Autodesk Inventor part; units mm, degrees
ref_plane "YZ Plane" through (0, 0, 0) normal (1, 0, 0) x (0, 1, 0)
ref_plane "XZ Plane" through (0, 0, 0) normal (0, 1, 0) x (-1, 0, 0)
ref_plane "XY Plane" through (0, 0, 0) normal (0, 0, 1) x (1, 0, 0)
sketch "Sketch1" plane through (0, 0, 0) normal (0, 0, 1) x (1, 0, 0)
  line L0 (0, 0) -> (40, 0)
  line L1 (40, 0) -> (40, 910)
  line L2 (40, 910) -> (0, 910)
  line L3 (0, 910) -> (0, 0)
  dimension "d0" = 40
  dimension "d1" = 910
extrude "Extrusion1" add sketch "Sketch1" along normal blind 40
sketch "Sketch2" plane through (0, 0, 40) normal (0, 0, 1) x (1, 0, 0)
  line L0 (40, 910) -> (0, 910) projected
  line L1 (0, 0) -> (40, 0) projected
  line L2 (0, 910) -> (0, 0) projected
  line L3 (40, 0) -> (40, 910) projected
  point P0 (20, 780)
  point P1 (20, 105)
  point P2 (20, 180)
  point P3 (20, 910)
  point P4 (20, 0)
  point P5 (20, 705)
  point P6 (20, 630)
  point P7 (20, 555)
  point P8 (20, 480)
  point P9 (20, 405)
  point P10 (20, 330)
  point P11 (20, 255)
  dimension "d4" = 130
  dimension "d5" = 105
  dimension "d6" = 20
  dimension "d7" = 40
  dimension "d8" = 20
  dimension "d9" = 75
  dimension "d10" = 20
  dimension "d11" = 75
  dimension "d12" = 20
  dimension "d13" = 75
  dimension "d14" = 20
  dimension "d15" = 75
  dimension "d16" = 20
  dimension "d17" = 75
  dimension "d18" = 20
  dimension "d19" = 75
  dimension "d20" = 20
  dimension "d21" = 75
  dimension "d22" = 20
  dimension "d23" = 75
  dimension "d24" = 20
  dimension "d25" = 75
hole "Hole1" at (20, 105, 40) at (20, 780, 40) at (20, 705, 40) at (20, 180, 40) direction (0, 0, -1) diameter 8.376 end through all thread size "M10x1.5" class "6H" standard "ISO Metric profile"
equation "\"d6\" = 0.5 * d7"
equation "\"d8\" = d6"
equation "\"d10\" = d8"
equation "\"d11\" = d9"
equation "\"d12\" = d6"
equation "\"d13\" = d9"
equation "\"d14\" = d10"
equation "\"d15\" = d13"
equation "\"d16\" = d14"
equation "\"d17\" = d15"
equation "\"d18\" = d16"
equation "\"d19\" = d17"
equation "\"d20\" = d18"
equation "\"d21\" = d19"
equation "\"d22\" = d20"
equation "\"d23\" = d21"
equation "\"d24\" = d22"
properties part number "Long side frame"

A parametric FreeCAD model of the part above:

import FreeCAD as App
import Part
import Sketcher


def add_polygon(sketch, points):
    """Adds a closed chain of lines whose ends are joined by coincident constraints."""
    first, n = sketch.GeometryCount, len(points)
    for a, b in zip(points, points[1:] + points[:1]):
        sketch.addGeometry(Part.LineSegment(App.Vector(*a, 0), App.Vector(*b, 0)), False)
    for i in range(n):
        sketch.addConstraint(Sketcher.Constraint("Coincident", first + i, 2, first + (i + 1) % n, 1))

doc = App.newDocument("Part")
body = doc.addObject("PartDesign::Body", "Body")

# Sketch on XY plane
sketch1 = body.newObject("Sketcher::SketchObject", "Sketch")
sketch1.AttachmentSupport = (doc.getObject("XY_Plane"), [""])
sketch1.MapMode = "FlatFace"
add_polygon(sketch1, [(0, 910), (0, 0), (40, 0), (40, 910)])  # lines 0-3
sketch1.addConstraint([
    Sketcher.Constraint("Vertical", 0),
    Sketcher.Constraint("Horizontal", 1),
    Sketcher.Constraint("Vertical", 2),
    Sketcher.Constraint("Horizontal", 3),
    Sketcher.Constraint("Coincident", 0, 2, -1, 1),
    Sketcher.Constraint("DistanceX", 1, 1, 1, 2, 40.0),
    Sketcher.Constraint("DistanceY", 0, 2, 0, 1, 910.0),
])
pad1 = body.newObject("PartDesign::Pad", "Pad")
pad1.Profile = sketch1
pad1.Length = 40

# Sketch on XY plane
sketch2 = body.newObject("Sketcher::SketchObject", "Sketch001")
sketch2.AttachmentSupport = (doc.getObject("XY_Plane"), [""])
sketch2.MapMode = "FlatFace"
sketch2.AttachmentOffset = App.Placement(App.Vector(0, 0, 40), App.Rotation())
sketch2.addGeometry([
    Part.Circle(App.Vector(20, 105, 0), App.Vector(0, 0, 1), 4.188),
    Part.Circle(App.Vector(20, 780, 0), App.Vector(0, 0, 1), 4.188),
    Part.Circle(App.Vector(20, 705, 0), App.Vector(0, 0, 1), 4.188),
    Part.Circle(App.Vector(20, 180, 0), App.Vector(0, 0, 1), 4.188),
], False)
sketch2.addConstraint([
    Sketcher.Constraint("Equal", 0, 1),
    Sketcher.Constraint("Equal", 1, 2),
    Sketcher.Constraint("Equal", 2, 3),
    Sketcher.Constraint("Vertical", 0, 3, 1, 3),
    Sketcher.Constraint("Vertical", 1, 3, 2, 3),
    Sketcher.Constraint("Vertical", 2, 3, 3, 3),
    Sketcher.Constraint("Diameter", 0, 8.376),
    Sketcher.Constraint("DistanceX", -1, 1, 0, 3, 20.0),
    Sketcher.Constraint("DistanceY", -1, 1, 0, 3, 105.0),
    Sketcher.Constraint("DistanceY", -1, 1, 1, 3, 780.0),
    Sketcher.Constraint("DistanceY", -1, 1, 2, 3, 705.0),
    Sketcher.Constraint("DistanceY", -1, 1, 3, 3, 180.0),
])
doc.recompute()
hole = body.newObject("PartDesign::Hole", "Hole")
hole.Profile = sketch2
hole.ThreadType = "None"
hole.Diameter = 8.376
hole.DepthType = "ThroughAll"

doc.recompute()
